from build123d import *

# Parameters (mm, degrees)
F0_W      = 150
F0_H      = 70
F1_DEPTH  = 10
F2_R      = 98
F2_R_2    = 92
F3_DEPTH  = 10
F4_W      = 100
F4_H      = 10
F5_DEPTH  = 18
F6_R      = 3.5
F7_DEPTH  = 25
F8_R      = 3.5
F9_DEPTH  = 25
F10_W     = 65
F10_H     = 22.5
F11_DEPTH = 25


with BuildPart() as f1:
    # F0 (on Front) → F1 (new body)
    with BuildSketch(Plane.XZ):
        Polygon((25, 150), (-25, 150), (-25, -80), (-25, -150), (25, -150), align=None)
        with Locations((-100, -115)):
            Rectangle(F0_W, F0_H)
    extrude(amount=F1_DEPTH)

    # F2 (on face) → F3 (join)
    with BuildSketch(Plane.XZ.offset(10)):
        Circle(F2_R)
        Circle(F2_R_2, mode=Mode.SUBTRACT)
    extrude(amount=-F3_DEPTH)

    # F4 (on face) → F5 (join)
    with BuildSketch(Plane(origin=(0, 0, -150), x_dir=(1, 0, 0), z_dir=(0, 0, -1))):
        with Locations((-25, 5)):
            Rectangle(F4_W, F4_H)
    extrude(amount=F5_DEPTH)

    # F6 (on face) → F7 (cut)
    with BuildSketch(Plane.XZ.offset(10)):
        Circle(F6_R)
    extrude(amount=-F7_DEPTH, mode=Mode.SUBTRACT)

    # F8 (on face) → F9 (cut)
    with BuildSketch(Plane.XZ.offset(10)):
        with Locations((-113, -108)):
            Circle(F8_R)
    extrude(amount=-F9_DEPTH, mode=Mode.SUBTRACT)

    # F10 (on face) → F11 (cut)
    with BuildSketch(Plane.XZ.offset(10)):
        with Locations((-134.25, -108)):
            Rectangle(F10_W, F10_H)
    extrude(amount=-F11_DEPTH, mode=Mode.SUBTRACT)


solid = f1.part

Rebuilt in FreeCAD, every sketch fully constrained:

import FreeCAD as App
import Part
import Sketcher


def add_polygon(sketch, points):
    """Adds a closed chain of lines whose ends are joined by coincident constraints."""
    first, n = sketch.GeometryCount, len(points)
    for a, b in zip(points, points[1:] + points[:1]):
        sketch.addGeometry(Part.LineSegment(App.Vector(*a, 0), App.Vector(*b, 0)), False)
    for i in range(n):
        sketch.addConstraint(Sketcher.Constraint("Coincident", first + i, 2, first + (i + 1) % n, 1))

doc = App.newDocument("Part")
params = doc.addObject("Spreadsheet::Sheet", "Params")
for row, (alias, value) in enumerate([
    ("sketch1_width", "50 mm"),
    ("sketch1_width2", "150 mm"),
    ("sketch1_height", "230 mm"),
    ("sketch1_height2", "70 mm"),
    ("pad1_length", "10 mm"),
    ("sketch2_diameter", "196 mm"),
    ("sketch2_diameter2", "184 mm"),
    ("pad2_length", "10 mm"),
    ("sketch3_width", "100 mm"),
    ("sketch3_height", "10 mm"),
    ("pad3_length", "18 mm"),
    ("sketch4_diameter", "7 mm"),
    ("pocket1_length", "25 mm"),
    ("sketch5_diameter", "7 mm"),
    ("pocket2_length", "25 mm"),
    ("sketch6_width", "65 mm"),
    ("sketch6_height", "22.5 mm"),
    ("pocket3_length", "25 mm"),
], start=1):
    params.set(f"A{row}", alias)
    params.set(f"B{row}", "=" + value)
    params.setAlias(f"B{row}", alias)

body = doc.addObject("PartDesign::Body", "Body")

# Sketch on XZ plane
sketch1 = doc.addObject("Sketcher::SketchObject", "Sketch")
body.addObject(sketch1)
sketch1.AttachmentSupport = (doc.XZ_Plane, [""])
sketch1.MapMode = "FlatFace"
add_polygon(sketch1, [(25, 150), (-25, 150), (-25, -80), (-175, -80), (-175, -150), (25, -150)])  # lines 0-5
sketch1.addConstraint([
    Sketcher.Constraint("Horizontal", 0),
    Sketcher.Constraint("Vertical", 1),
    Sketcher.Constraint("Horizontal", 2),
    Sketcher.Constraint("Vertical", 3),
    Sketcher.Constraint("Horizontal", 4),
    Sketcher.Constraint("Vertical", 5),
    Sketcher.Constraint("Symmetric", 0, 2, 4, 2, -1, 1),
    Sketcher.Constraint("DistanceX", 0, 2, 0, 1, 50.0),
    Sketcher.Constraint("DistanceX", 2, 2, 2, 1, 150.0),
    Sketcher.Constraint("DistanceY", 1, 2, 1, 1, 230.0),
    Sketcher.Constraint("DistanceY", 3, 2, 3, 1, 70.0),
])
sketch1.setExpression("Constraints[13]", "Params.sketch1_width")
sketch1.setExpression("Constraints[14]", "Params.sketch1_width2")
sketch1.setExpression("Constraints[15]", "Params.sketch1_height")
sketch1.setExpression("Constraints[16]", "Params.sketch1_height2")
pad1 = doc.addObject("PartDesign::Pad", "Pad")
body.addObject(pad1)
pad1.Profile = sketch1
pad1.setExpression("Length", "Params.pad1_length")

# Sketch on XZ plane
sketch2 = doc.addObject("Sketcher::SketchObject", "Sketch001")
body.addObject(sketch2)
sketch2.AttachmentSupport = (doc.XZ_Plane, [""])
sketch2.MapMode = "FlatFace"
sketch2.AttachmentOffset = App.Placement(App.Vector(0, 0, 10), App.Rotation())
sketch2.addGeometry([
    Part.Circle(App.Vector(0, 0, 0), App.Vector(0, 0, 1), 98),
    Part.Circle(App.Vector(0, 0, 0), App.Vector(0, 0, 1), 92),
], False)
sketch2.addConstraint([
    Sketcher.Constraint("Coincident", 0, 3, -1, 1),
    Sketcher.Constraint("Coincident", 1, 3, -1, 1),
    Sketcher.Constraint("Diameter", 0, 196.0),
    Sketcher.Constraint("Diameter", 1, 184.0),
])
sketch2.setExpression("Constraints[2]", "Params.sketch2_diameter")
sketch2.setExpression("Constraints[3]", "Params.sketch2_diameter2")
pad2 = doc.addObject("PartDesign::Pad", "Pad001")
body.addObject(pad2)
pad2.Profile = sketch2
pad2.setExpression("Length", "Params.pad2_length")
pad2.Reversed = True

# Sketch on XY plane
sketch3 = doc.addObject("Sketcher::SketchObject", "Sketch002")
body.addObject(sketch3)
sketch3.AttachmentSupport = (doc.XY_Plane, [""])
sketch3.MapMode = "FlatFace"
sketch3.AttachmentOffset = App.Placement(App.Vector(0, 0, -150), App.Rotation())
add_polygon(sketch3, [(-75, -10), (-75, 0), (25, 0), (25, -10)])  # lines 0-3
sketch3.addConstraint([
    Sketcher.Constraint("Vertical", 0),
    Sketcher.Constraint("Horizontal", 1),
    Sketcher.Constraint("Vertical", 2),
    Sketcher.Constraint("Horizontal", 3),
    Sketcher.Constraint("PointOnObject", 0, 2, -1),
    Sketcher.Constraint("DistanceX", 1, 1, 1, 2, 100.0),
    Sketcher.Constraint("DistanceY", 0, 1, 0, 2, 10.0),
    Sketcher.Constraint("DistanceX", 0, 2, -1, 1, 75.0),
])
sketch3.setExpression("Constraints[9]", "Params.sketch3_width")
sketch3.setExpression("Constraints[10]", "Params.sketch3_height")
pad3 = doc.addObject("PartDesign::Pad", "Pad002")
body.addObject(pad3)
pad3.Profile = sketch3
pad3.setExpression("Length", "Params.pad3_length")
pad3.Reversed = True

# Sketch on XZ plane
sketch4 = doc.addObject("Sketcher::SketchObject", "Sketch003")
body.addObject(sketch4)
sketch4.AttachmentSupport = (doc.XZ_Plane, [""])
sketch4.MapMode = "FlatFace"
sketch4.AttachmentOffset = App.Placement(App.Vector(0, 0, 10), App.Rotation())
sketch4.addGeometry(Part.Circle(App.Vector(0, 0, 0), App.Vector(0, 0, 1), 3.5), False)
sketch4.addConstraint([
    Sketcher.Constraint("Coincident", 0, 3, -1, 1),
    Sketcher.Constraint("Diameter", 0, 7.0),
])
sketch4.setExpression("Constraints[1]", "Params.sketch4_diameter")
pocket1 = doc.addObject("PartDesign::Pocket", "Pocket")
body.addObject(pocket1)
pocket1.Profile = sketch4
pocket1.setExpression("Length", "Params.pocket1_length")

# Sketch on XZ plane
sketch5 = doc.addObject("Sketcher::SketchObject", "Sketch004")
body.addObject(sketch5)
sketch5.AttachmentSupport = (doc.XZ_Plane, [""])
sketch5.MapMode = "FlatFace"
sketch5.AttachmentOffset = App.Placement(App.Vector(0, 0, 10), App.Rotation())
sketch5.addGeometry(Part.Circle(App.Vector(-113, -108, 0), App.Vector(0, 0, 1), 3.5), False)
sketch5.addConstraint([
    Sketcher.Constraint("Diameter", 0, 7.0),
    Sketcher.Constraint("DistanceX", 0, 3, -1, 1, 113.0),
    Sketcher.Constraint("DistanceY", 0, 3, -1, 1, 108.0),
])
sketch5.setExpression("Constraints[0]", "Params.sketch5_diameter")
pocket2 = doc.addObject("PartDesign::Pocket", "Pocket001")
body.addObject(pocket2)
pocket2.Profile = sketch5
pocket2.setExpression("Length", "Params.pocket2_length")

# Sketch on XZ plane
sketch6 = doc.addObject("Sketcher::SketchObject", "Sketch005")
body.addObject(sketch6)
sketch6.AttachmentSupport = (doc.XZ_Plane, [""])
sketch6.MapMode = "FlatFace"
sketch6.AttachmentOffset = App.Placement(App.Vector(0, 0, 10), App.Rotation())
add_polygon(sketch6, [(-166.75, -96.75), (-166.75, -119.25), (-101.75, -119.25), (-101.75, -96.75)])  # lines 0-3
sketch6.addConstraint([
    Sketcher.Constraint("Vertical", 0),
    Sketcher.Constraint("Horizontal", 1),
    Sketcher.Constraint("Vertical", 2),
    Sketcher.Constraint("Horizontal", 3),
    Sketcher.Constraint("DistanceX", 1, 1, 1, 2, 65.0),
    Sketcher.Constraint("DistanceY", 0, 2, 0, 1, 22.5),
    Sketcher.Constraint("DistanceX", 0, 2, -1, 1, 166.75),
    Sketcher.Constraint("DistanceY", 0, 2, -1, 1, 119.25),
])
sketch6.setExpression("Constraints[8]", "Params.sketch6_width")
sketch6.setExpression("Constraints[9]", "Params.sketch6_height")
pocket3 = doc.addObject("PartDesign::Pocket", "Pocket002")
body.addObject(pocket3)
pocket3.Profile = sketch6
pocket3.setExpression("Length", "Params.pocket3_length")

doc.recompute()
